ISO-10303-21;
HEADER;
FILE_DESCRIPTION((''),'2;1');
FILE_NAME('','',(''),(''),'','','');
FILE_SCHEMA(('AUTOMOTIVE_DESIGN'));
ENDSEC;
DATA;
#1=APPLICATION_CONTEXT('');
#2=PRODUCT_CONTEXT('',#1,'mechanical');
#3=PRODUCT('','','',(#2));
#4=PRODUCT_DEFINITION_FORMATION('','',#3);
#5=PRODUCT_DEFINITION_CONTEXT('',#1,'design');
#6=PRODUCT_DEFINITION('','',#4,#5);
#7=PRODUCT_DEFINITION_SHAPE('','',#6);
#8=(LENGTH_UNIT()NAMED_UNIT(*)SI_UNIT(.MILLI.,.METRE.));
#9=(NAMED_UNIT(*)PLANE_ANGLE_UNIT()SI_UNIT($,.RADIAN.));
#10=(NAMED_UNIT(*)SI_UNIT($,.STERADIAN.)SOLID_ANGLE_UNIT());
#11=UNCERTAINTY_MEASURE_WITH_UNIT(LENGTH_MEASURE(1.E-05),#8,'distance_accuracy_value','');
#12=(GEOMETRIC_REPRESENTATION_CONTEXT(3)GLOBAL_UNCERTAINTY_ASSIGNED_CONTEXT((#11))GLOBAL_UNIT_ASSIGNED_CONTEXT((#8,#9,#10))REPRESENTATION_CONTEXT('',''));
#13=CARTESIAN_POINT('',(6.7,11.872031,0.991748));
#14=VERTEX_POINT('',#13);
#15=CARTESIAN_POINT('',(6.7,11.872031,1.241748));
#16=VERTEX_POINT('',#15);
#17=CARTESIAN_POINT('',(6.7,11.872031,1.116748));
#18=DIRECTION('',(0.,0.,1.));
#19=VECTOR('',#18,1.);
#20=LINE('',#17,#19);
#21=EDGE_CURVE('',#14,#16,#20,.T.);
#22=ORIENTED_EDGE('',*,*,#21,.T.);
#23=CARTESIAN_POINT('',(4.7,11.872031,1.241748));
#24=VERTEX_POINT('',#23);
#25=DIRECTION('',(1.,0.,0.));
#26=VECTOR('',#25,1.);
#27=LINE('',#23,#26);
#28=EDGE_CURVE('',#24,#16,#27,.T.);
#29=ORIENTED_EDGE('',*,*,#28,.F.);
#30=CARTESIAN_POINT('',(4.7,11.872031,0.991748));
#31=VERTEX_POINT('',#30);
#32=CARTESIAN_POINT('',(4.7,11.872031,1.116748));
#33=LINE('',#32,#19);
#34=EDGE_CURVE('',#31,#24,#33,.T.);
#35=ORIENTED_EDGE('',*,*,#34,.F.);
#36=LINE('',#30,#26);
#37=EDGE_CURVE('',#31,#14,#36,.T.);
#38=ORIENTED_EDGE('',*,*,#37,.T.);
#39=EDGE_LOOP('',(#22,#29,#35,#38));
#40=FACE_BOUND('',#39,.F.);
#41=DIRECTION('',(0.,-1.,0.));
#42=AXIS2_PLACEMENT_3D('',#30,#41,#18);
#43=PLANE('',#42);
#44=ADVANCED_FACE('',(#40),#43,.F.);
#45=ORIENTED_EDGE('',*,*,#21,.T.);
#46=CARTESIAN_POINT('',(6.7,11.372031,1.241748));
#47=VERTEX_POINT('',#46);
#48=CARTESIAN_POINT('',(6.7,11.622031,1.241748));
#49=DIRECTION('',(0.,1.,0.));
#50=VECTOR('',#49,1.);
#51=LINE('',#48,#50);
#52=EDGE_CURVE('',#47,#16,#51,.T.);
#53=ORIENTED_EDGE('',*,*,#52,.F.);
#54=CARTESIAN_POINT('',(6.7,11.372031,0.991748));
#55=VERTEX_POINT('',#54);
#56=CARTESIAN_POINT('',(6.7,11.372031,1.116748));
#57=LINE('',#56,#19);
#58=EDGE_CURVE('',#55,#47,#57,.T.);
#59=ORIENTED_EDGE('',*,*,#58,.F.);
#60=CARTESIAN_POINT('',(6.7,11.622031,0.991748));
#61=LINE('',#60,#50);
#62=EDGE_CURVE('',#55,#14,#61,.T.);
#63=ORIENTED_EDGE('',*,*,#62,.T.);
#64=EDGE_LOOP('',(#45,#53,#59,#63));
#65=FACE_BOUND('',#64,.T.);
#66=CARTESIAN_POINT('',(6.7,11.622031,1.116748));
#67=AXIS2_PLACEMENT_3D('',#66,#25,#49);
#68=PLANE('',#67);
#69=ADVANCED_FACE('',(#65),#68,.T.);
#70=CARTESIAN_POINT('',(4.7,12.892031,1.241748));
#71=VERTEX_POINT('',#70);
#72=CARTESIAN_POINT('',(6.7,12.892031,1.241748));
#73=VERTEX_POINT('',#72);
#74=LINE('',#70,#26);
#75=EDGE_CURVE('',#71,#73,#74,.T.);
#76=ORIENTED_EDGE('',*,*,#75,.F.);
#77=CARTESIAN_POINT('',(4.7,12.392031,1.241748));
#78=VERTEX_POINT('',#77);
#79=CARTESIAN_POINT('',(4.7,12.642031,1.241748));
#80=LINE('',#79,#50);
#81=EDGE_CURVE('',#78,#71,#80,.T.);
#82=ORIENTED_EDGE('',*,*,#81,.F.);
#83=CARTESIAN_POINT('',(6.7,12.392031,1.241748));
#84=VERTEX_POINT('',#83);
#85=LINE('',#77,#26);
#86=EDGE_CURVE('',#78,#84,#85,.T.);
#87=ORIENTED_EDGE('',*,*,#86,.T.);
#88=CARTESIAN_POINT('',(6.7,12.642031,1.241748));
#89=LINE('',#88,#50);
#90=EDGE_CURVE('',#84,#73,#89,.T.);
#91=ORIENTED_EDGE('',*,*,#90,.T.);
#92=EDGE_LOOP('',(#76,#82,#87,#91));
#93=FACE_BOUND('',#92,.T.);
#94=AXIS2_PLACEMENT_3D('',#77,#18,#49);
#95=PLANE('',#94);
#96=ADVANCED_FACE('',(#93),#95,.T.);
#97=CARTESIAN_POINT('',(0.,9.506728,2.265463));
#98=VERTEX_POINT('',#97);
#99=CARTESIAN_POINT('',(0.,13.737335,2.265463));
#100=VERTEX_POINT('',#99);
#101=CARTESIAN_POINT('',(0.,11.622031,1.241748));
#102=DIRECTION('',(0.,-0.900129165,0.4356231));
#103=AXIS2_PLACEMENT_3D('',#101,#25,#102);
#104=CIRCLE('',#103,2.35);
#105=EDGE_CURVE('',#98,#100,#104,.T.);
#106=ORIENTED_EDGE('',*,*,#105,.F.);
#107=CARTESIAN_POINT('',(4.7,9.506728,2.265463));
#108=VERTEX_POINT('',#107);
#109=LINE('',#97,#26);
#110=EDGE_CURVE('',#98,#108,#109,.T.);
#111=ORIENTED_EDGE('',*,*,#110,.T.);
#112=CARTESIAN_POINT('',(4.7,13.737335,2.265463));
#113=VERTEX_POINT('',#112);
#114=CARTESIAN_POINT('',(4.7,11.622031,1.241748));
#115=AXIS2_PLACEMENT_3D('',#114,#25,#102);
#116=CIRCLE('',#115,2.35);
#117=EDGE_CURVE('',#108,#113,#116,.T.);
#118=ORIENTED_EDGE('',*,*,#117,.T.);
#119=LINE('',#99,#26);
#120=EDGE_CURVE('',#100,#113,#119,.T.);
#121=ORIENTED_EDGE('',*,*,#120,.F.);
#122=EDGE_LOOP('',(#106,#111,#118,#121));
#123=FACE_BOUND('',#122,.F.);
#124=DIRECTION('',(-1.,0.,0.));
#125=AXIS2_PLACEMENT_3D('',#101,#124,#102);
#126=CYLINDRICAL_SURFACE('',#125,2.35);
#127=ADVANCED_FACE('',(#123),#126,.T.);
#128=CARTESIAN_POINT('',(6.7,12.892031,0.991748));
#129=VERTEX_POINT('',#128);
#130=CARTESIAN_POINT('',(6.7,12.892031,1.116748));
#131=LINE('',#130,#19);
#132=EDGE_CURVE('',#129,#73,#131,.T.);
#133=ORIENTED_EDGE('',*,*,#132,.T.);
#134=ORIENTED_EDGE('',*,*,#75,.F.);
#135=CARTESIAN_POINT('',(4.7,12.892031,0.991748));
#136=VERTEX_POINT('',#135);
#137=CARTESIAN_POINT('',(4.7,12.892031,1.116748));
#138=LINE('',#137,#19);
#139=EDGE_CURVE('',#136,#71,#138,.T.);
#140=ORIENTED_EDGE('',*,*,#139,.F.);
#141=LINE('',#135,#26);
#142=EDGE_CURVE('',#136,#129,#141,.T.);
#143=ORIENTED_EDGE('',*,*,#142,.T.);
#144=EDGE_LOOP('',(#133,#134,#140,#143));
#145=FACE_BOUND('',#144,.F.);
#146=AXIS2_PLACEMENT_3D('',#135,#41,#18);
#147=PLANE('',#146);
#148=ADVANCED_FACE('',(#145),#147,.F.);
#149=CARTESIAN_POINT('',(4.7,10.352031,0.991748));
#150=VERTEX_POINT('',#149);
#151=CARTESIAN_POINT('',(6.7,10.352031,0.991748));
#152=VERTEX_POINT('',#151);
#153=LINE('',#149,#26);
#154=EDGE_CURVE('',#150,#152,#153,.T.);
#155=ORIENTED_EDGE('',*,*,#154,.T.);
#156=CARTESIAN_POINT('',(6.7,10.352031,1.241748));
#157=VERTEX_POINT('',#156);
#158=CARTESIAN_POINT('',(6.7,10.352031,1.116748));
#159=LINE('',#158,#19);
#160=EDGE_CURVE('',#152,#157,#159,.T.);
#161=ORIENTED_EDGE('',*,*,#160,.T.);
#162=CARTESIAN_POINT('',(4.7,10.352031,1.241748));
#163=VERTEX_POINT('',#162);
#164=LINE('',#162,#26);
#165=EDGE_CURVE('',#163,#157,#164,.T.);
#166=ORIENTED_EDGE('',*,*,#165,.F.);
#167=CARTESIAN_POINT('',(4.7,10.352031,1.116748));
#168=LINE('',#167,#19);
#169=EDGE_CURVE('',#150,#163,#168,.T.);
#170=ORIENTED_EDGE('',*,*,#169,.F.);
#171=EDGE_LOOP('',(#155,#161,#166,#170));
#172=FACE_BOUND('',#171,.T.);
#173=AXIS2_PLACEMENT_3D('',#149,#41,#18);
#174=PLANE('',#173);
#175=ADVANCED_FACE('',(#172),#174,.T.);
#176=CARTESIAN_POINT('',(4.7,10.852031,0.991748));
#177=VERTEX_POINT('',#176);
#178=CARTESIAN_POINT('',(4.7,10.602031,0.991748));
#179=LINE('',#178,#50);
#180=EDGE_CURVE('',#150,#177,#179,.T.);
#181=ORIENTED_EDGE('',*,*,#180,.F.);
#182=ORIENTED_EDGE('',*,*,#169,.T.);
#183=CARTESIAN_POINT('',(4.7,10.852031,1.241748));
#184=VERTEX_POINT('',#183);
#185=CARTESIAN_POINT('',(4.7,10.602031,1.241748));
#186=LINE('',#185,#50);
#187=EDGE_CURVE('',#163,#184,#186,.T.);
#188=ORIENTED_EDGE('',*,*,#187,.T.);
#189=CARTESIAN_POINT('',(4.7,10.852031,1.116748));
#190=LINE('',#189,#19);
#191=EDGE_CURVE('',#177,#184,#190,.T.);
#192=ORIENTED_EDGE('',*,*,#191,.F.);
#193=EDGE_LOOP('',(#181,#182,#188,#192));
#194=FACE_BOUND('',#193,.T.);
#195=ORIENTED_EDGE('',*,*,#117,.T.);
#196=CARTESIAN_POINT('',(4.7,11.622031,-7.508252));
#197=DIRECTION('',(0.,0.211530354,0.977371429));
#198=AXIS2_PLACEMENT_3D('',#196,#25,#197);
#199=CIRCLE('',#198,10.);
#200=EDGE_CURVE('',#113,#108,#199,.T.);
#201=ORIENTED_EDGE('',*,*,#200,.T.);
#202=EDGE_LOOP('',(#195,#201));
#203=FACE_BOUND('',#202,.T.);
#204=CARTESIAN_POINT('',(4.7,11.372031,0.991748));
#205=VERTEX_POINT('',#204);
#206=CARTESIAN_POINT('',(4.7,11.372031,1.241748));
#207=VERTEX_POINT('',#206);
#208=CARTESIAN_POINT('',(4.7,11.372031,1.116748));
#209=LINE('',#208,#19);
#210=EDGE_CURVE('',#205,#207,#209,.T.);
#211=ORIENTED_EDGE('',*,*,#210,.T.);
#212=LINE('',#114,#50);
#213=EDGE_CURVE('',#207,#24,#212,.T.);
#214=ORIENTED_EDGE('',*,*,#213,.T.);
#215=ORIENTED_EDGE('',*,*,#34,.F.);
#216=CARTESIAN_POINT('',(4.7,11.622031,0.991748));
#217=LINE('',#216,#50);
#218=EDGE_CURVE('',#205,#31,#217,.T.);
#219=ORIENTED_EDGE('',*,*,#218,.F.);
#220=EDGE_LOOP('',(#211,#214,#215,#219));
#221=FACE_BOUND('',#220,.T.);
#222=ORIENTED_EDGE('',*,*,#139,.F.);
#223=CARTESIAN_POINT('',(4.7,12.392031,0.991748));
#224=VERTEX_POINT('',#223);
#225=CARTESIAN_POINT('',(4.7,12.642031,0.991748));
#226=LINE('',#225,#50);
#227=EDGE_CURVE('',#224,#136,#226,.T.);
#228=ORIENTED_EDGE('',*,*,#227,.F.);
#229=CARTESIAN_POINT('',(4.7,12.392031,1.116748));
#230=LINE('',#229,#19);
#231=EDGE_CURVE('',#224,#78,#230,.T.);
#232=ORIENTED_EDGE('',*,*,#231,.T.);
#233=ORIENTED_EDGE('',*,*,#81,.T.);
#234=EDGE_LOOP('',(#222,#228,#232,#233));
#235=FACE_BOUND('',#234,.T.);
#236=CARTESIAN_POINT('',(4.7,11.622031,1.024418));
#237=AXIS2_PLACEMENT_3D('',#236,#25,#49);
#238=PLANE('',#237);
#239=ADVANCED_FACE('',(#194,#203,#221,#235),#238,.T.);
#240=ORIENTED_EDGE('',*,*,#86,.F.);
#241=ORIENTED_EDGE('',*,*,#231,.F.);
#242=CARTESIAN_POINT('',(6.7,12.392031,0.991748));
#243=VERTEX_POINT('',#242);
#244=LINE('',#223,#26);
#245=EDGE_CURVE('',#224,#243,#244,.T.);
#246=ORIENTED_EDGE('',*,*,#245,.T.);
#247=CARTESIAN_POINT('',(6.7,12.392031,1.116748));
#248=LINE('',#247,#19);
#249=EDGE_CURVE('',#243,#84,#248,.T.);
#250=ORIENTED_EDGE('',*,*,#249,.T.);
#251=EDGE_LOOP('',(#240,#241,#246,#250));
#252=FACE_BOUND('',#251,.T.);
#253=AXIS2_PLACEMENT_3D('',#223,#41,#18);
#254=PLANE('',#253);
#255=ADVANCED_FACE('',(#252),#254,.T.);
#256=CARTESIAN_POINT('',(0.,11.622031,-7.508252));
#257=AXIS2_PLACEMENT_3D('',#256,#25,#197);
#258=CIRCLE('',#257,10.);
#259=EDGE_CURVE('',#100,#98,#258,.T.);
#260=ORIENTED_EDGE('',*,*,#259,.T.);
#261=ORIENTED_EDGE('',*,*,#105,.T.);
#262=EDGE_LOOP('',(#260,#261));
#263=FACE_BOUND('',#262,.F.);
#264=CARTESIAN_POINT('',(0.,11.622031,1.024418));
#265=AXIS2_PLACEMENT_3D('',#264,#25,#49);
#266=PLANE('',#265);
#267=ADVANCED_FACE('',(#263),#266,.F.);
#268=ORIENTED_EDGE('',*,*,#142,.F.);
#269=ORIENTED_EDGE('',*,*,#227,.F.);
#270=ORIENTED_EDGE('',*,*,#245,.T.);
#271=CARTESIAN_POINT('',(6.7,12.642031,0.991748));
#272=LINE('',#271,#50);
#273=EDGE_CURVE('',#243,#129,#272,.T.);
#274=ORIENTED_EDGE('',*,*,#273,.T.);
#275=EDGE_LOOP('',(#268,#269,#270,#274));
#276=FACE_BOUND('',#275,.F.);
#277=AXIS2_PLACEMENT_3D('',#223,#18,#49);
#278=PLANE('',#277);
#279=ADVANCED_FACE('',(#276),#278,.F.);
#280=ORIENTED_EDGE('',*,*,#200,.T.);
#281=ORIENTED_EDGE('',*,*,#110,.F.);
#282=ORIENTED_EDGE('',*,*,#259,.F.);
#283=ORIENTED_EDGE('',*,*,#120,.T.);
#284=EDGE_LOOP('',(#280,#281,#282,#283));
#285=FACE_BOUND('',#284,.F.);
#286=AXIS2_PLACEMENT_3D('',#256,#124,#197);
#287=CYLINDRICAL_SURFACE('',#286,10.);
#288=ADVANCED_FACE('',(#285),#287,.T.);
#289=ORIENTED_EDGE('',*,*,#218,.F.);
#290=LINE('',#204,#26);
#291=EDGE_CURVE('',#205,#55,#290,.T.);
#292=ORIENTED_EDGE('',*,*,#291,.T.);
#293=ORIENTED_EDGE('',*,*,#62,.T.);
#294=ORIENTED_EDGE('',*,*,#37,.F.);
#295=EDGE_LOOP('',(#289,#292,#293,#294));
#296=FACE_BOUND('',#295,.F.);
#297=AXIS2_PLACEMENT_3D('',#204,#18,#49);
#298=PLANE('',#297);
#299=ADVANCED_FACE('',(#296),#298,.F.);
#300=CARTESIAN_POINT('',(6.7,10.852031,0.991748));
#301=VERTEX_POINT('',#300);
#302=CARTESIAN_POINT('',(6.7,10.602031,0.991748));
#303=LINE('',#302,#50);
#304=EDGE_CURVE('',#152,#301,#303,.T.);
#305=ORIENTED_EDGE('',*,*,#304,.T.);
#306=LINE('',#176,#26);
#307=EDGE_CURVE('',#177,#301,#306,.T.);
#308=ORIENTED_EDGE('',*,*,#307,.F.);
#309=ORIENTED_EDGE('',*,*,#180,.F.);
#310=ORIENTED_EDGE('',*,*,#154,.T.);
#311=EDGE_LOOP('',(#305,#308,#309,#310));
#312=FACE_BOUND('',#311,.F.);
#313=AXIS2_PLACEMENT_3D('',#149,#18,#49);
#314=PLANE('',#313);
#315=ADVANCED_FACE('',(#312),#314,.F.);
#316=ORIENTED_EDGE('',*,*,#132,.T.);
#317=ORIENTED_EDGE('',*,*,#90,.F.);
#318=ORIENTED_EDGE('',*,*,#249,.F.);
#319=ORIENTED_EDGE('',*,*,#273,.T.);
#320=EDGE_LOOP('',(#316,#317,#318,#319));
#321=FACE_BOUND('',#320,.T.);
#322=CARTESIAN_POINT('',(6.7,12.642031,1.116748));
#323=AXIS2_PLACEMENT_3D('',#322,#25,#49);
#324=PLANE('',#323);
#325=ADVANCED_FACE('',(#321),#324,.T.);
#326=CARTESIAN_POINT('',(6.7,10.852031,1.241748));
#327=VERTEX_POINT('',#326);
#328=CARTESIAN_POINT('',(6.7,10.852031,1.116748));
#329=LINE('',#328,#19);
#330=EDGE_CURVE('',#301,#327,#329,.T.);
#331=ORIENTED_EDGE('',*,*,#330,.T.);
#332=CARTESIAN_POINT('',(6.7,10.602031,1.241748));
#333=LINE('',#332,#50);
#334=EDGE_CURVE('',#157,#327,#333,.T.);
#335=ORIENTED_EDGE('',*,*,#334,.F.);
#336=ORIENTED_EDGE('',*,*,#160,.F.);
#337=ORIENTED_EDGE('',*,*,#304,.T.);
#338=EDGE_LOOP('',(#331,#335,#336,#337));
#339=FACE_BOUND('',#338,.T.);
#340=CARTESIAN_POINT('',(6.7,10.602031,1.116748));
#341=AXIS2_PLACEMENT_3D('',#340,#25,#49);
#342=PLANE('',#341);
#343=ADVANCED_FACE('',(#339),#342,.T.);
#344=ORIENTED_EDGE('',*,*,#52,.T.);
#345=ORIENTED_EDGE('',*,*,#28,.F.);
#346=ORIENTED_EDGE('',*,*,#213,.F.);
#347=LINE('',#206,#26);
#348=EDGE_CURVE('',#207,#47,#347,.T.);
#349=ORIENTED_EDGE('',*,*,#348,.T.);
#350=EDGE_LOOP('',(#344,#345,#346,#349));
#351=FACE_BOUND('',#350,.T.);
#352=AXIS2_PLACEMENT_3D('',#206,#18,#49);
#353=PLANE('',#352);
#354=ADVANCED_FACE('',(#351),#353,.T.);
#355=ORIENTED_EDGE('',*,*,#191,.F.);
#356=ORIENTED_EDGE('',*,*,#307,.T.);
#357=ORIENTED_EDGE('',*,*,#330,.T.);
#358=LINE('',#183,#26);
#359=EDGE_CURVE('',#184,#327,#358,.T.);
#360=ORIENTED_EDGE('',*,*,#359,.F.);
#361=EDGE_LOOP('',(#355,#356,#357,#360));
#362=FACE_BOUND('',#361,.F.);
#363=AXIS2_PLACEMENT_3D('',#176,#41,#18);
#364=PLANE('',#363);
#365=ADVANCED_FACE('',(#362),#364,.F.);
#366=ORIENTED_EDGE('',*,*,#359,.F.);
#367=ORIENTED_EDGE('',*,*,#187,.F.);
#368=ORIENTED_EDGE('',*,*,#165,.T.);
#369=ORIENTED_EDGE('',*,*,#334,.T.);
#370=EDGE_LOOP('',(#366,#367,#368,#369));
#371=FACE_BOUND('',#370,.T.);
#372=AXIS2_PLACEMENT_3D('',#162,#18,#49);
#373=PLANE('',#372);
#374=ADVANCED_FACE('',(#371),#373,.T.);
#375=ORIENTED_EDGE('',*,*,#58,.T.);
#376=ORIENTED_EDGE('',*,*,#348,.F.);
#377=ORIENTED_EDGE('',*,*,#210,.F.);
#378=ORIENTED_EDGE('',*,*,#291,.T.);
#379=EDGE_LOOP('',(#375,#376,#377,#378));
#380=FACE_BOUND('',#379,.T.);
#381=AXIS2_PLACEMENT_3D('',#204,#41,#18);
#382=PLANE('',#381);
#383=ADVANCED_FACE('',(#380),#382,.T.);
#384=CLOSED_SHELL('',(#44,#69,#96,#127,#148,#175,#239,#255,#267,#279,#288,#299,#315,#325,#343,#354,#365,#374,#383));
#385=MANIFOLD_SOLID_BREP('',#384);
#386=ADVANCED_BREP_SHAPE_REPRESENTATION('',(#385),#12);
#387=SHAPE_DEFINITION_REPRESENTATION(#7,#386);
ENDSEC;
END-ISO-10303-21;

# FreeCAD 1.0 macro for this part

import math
import FreeCAD as App
import Part
import Sketcher
from FreeCAD import Vector
Q = App.Units.Quantity

doc = App.newDocument("Part")
body = doc.addObject("PartDesign::Body", "Body")

sketch1 = body.newObject("Sketcher::SketchObject", "Sketch")
sketch1.AttachmentSupport = (doc.getObject("YZ_Plane"), [""])
sketch1.MapMode = "FlatFace"
sketch1.addGeometry(Part.ArcOfCircle(Part.Circle(Vector(11.622031, -7.508252, 0), Vector(0, 0, 1), 10), math.radians(77.78795), math.radians(102.21205)), False)
sketch1.addGeometry(Part.ArcOfCircle(Part.Circle(Vector(11.622031, 1.241748, 0), Vector(0, 0, 1), 2.35), math.radians(154.175051), math.radians(385.824949)), False)
sketch1.addConstraint(Sketcher.Constraint("Coincident", 0, 1, 1, 2))
sketch1.addConstraint(Sketcher.Constraint("Coincident", 1, 1, 0, 2))
sketch1.addConstraint(Sketcher.Constraint("Horizontal", 0, 1, 1, 1))
sketch1.addConstraint(Sketcher.Constraint("Radius", 0, Q("10 mm")))
sketch1.addConstraint(Sketcher.Constraint("Radius", 1, Q("2.35 mm")))
sketch1.addConstraint(Sketcher.Constraint("DistanceY", 0, 3, 1, 3, Q("8.75 mm")))
sketch1.addConstraint(Sketcher.Constraint("DistanceX", -1, 1, 0, 3, Q("11.622031 mm")))
sketch1.addConstraint(Sketcher.Constraint("DistanceY", 0, 3, -1, 1, Q("7.508252 mm")))
pad1 = body.newObject("PartDesign::Pad", "Pad")
pad1.Profile = sketch1
pad1.Length = 4.7

sketch2 = body.newObject("Sketcher::SketchObject", "Sketch001")
sketch2.AttachmentSupport = (doc.getObject("YZ_Plane"), [""])
sketch2.MapMode = "FlatFace"
sketch2.AttachmentOffset = App.Placement(Vector(0, 0, 4.7), App.Rotation())
sketch2.addGeometry(Part.LineSegment(Vector(10.352031, 1.241748, 0), Vector(10.352031, 0.991748, 0)), False)
sketch2.addGeometry(Part.LineSegment(Vector(10.352031, 0.991748, 0), Vector(10.852031, 0.991748, 0)), False)
sketch2.addGeometry(Part.LineSegment(Vector(10.852031, 0.991748, 0), Vector(10.852031, 1.241748, 0)), False)
sketch2.addGeometry(Part.LineSegment(Vector(10.852031, 1.241748, 0), Vector(10.352031, 1.241748, 0)), False)
sketch2.addGeometry(Part.LineSegment(Vector(11.372031, 1.241748, 0), Vector(11.372031, 0.991748, 0)), False)
sketch2.addGeometry(Part.LineSegment(Vector(11.372031, 0.991748, 0), Vector(11.872031, 0.991748, 0)), False)
sketch2.addGeometry(Part.LineSegment(Vector(11.872031, 0.991748, 0), Vector(11.872031, 1.241748, 0)), False)
sketch2.addGeometry(Part.LineSegment(Vector(11.872031, 1.241748, 0), Vector(11.372031, 1.241748, 0)), False)
sketch2.addGeometry(Part.LineSegment(Vector(12.392031, 1.241748, 0), Vector(12.392031, 0.991748, 0)), False)
sketch2.addGeometry(Part.LineSegment(Vector(12.392031, 0.991748, 0), Vector(12.892031, 0.991748, 0)), False)
sketch2.addGeometry(Part.LineSegment(Vector(12.892031, 0.991748, 0), Vector(12.892031, 1.241748, 0)), False)
sketch2.addGeometry(Part.LineSegment(Vector(12.892031, 1.241748, 0), Vector(12.392031, 1.241748, 0)), False)
sketch2.addConstraint(Sketcher.Constraint("Coincident", 0, 2, 1, 1))
sketch2.addConstraint(Sketcher.Constraint("Coincident", 1, 2, 2, 1))
sketch2.addConstraint(Sketcher.Constraint("Coincident", 2, 2, 3, 1))
sketch2.addConstraint(Sketcher.Constraint("Coincident", 3, 2, 0, 1))
sketch2.addConstraint(Sketcher.Constraint("Coincident", 4, 2, 5, 1))
sketch2.addConstraint(Sketcher.Constraint("Coincident", 5, 2, 6, 1))
sketch2.addConstraint(Sketcher.Constraint("Coincident", 6, 2, 7, 1))
sketch2.addConstraint(Sketcher.Constraint("Coincident", 7, 2, 4, 1))
sketch2.addConstraint(Sketcher.Constraint("Coincident", 8, 2, 9, 1))
sketch2.addConstraint(Sketcher.Constraint("Coincident", 9, 2, 10, 1))
sketch2.addConstraint(Sketcher.Constraint("Coincident", 10, 2, 11, 1))
sketch2.addConstraint(Sketcher.Constraint("Coincident", 11, 2, 8, 1))
sketch2.addConstraint(Sketcher.Constraint("Vertical", 0))
sketch2.addConstraint(Sketcher.Constraint("Horizontal", 1))
sketch2.addConstraint(Sketcher.Constraint("Vertical", 2))
sketch2.addConstraint(Sketcher.Constraint("Horizontal", 3))
sketch2.addConstraint(Sketcher.Constraint("Vertical", 4))
sketch2.addConstraint(Sketcher.Constraint("Horizontal", 5))
sketch2.addConstraint(Sketcher.Constraint("Vertical", 6))
sketch2.addConstraint(Sketcher.Constraint("Horizontal", 7))
sketch2.addConstraint(Sketcher.Constraint("Vertical", 8))
sketch2.addConstraint(Sketcher.Constraint("Horizontal", 9))
sketch2.addConstraint(Sketcher.Constraint("Vertical", 10))
sketch2.addConstraint(Sketcher.Constraint("Horizontal", 11))
sketch2.addConstraint(Sketcher.Constraint("Horizontal", 1, 2, 4, 2))
sketch2.addConstraint(Sketcher.Constraint("Horizontal", 3, 2, 6, 2))
sketch2.addConstraint(Sketcher.Constraint("Horizontal", 5, 2, 8, 2))
sketch2.addConstraint(Sketcher.Constraint("Horizontal", 7, 2, 10, 2))
sketch2.addConstraint(Sketcher.Constraint("Equal", 3, 5))
sketch2.addConstraint(Sketcher.Constraint("Equal", 7, 9))
sketch2.addConstraint(Sketcher.Constraint("DistanceX", 1, 1, 1, 2, Q("0.5 mm")))
sketch2.addConstraint(Sketcher.Constraint("DistanceY", 0, 2, 0, 1, Q("0.25 mm")))
sketch2.addConstraint(Sketcher.Constraint("DistanceX", 1, 2, 4, 2, Q("0.52 mm")))
sketch2.addConstraint(Sketcher.Constraint("DistanceX", 5, 2, 8, 2, Q("0.52 mm")))
sketch2.addConstraint(Sketcher.Constraint("DistanceX", -1, 1, 0, 2, Q("10.352031 mm")))
sketch2.addConstraint(Sketcher.Constraint("DistanceY", -1, 1, 0, 2, Q("0.991748 mm")))
pad2 = body.newObject("PartDesign::Pad", "Pad001")
pad2.Profile = sketch2
pad2.Length = 2

doc.recompute()
